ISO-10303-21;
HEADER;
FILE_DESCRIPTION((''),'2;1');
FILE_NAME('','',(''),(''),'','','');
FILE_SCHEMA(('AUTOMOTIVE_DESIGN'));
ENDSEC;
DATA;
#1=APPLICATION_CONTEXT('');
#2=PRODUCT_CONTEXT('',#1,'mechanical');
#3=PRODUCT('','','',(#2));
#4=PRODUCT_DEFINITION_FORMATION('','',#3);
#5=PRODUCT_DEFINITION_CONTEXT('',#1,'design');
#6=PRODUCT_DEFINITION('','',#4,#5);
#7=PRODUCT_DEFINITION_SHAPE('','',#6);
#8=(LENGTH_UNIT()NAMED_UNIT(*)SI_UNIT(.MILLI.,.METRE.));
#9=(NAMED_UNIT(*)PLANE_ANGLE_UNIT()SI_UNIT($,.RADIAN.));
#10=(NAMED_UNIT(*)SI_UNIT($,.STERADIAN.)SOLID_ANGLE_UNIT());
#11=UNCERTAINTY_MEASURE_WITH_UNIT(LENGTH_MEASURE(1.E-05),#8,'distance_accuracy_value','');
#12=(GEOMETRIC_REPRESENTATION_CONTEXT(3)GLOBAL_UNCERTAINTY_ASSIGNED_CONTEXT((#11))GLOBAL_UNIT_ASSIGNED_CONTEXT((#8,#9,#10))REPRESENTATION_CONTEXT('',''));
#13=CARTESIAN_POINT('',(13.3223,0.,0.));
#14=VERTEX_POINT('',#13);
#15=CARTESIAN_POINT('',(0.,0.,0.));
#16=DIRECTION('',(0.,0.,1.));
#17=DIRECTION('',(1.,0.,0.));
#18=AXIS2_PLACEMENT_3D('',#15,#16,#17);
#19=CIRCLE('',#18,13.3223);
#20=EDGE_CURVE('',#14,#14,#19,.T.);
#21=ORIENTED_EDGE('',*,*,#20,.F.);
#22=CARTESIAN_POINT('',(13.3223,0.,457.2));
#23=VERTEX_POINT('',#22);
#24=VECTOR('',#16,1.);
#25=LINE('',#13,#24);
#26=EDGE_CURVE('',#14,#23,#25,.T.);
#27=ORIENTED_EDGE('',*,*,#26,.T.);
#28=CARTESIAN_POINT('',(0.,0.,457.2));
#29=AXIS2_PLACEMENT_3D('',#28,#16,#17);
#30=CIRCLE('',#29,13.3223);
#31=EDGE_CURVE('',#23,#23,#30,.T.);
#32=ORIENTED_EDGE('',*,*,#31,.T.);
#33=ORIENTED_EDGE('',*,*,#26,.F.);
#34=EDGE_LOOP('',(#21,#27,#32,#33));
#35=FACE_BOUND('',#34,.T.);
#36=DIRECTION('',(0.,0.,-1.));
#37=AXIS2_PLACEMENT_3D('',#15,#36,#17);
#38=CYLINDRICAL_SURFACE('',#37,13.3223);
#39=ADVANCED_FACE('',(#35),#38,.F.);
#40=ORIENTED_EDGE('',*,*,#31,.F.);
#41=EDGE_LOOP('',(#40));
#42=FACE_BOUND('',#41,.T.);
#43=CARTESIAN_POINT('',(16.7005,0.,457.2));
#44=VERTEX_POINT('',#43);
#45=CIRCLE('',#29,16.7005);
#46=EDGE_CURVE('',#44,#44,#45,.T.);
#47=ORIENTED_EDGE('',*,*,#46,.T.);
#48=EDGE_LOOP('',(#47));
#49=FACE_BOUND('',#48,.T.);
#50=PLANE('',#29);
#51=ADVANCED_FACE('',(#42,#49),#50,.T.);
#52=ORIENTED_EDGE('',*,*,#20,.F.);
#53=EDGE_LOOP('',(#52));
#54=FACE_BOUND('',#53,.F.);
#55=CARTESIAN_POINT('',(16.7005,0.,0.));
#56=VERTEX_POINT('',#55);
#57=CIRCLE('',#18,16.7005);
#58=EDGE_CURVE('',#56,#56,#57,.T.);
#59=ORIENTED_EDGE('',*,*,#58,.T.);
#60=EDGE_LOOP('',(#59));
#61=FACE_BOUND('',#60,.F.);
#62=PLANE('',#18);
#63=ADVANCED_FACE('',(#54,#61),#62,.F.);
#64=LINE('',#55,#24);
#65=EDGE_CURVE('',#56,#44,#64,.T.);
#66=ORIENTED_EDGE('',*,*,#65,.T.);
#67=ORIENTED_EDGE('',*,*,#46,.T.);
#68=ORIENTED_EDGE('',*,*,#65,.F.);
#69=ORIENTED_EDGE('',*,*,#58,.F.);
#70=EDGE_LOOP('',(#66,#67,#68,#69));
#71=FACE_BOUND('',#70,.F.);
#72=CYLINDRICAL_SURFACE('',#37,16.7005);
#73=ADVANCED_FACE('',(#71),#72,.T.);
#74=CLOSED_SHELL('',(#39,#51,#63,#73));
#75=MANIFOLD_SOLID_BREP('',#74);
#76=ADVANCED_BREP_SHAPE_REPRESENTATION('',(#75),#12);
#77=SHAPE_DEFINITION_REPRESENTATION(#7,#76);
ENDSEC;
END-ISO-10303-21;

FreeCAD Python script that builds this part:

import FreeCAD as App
import Part
import Sketcher

V = App.Vector
Q = App.Units.Quantity

doc = App.newDocument("Part")
body = doc.addObject("PartDesign::Body", "Body")

sketch1 = body.newObject("Sketcher::SketchObject", "Sketch")
sketch1.AttachmentSupport = (doc.getObject("XY_Plane"), [""])
sketch1.MapMode = "FlatFace"
sketch1.addGeometry(Part.Circle(V(0, 0, 0), V(0, 0, 1), 17), False)
sketch1.addGeometry(Part.Circle(V(0, 0, 0), V(0, 0, 1), 13), False)
sketch1.addConstraint(Sketcher.Constraint("Coincident", 0, 3, -1, 1))
sketch1.addConstraint(Sketcher.Constraint("Coincident", 1, 3, -1, 1))
sketch1.addConstraint(Sketcher.Constraint("Diameter", 0, Q("1.315 in")))
sketch1.addConstraint(Sketcher.Constraint("Diameter", 1, Q("1.049 in")))
pad1 = body.newObject("PartDesign::Pad", "Pad")
pad1.Profile = sketch1
pad1.Length = Q("18 in")

doc.recompute()
